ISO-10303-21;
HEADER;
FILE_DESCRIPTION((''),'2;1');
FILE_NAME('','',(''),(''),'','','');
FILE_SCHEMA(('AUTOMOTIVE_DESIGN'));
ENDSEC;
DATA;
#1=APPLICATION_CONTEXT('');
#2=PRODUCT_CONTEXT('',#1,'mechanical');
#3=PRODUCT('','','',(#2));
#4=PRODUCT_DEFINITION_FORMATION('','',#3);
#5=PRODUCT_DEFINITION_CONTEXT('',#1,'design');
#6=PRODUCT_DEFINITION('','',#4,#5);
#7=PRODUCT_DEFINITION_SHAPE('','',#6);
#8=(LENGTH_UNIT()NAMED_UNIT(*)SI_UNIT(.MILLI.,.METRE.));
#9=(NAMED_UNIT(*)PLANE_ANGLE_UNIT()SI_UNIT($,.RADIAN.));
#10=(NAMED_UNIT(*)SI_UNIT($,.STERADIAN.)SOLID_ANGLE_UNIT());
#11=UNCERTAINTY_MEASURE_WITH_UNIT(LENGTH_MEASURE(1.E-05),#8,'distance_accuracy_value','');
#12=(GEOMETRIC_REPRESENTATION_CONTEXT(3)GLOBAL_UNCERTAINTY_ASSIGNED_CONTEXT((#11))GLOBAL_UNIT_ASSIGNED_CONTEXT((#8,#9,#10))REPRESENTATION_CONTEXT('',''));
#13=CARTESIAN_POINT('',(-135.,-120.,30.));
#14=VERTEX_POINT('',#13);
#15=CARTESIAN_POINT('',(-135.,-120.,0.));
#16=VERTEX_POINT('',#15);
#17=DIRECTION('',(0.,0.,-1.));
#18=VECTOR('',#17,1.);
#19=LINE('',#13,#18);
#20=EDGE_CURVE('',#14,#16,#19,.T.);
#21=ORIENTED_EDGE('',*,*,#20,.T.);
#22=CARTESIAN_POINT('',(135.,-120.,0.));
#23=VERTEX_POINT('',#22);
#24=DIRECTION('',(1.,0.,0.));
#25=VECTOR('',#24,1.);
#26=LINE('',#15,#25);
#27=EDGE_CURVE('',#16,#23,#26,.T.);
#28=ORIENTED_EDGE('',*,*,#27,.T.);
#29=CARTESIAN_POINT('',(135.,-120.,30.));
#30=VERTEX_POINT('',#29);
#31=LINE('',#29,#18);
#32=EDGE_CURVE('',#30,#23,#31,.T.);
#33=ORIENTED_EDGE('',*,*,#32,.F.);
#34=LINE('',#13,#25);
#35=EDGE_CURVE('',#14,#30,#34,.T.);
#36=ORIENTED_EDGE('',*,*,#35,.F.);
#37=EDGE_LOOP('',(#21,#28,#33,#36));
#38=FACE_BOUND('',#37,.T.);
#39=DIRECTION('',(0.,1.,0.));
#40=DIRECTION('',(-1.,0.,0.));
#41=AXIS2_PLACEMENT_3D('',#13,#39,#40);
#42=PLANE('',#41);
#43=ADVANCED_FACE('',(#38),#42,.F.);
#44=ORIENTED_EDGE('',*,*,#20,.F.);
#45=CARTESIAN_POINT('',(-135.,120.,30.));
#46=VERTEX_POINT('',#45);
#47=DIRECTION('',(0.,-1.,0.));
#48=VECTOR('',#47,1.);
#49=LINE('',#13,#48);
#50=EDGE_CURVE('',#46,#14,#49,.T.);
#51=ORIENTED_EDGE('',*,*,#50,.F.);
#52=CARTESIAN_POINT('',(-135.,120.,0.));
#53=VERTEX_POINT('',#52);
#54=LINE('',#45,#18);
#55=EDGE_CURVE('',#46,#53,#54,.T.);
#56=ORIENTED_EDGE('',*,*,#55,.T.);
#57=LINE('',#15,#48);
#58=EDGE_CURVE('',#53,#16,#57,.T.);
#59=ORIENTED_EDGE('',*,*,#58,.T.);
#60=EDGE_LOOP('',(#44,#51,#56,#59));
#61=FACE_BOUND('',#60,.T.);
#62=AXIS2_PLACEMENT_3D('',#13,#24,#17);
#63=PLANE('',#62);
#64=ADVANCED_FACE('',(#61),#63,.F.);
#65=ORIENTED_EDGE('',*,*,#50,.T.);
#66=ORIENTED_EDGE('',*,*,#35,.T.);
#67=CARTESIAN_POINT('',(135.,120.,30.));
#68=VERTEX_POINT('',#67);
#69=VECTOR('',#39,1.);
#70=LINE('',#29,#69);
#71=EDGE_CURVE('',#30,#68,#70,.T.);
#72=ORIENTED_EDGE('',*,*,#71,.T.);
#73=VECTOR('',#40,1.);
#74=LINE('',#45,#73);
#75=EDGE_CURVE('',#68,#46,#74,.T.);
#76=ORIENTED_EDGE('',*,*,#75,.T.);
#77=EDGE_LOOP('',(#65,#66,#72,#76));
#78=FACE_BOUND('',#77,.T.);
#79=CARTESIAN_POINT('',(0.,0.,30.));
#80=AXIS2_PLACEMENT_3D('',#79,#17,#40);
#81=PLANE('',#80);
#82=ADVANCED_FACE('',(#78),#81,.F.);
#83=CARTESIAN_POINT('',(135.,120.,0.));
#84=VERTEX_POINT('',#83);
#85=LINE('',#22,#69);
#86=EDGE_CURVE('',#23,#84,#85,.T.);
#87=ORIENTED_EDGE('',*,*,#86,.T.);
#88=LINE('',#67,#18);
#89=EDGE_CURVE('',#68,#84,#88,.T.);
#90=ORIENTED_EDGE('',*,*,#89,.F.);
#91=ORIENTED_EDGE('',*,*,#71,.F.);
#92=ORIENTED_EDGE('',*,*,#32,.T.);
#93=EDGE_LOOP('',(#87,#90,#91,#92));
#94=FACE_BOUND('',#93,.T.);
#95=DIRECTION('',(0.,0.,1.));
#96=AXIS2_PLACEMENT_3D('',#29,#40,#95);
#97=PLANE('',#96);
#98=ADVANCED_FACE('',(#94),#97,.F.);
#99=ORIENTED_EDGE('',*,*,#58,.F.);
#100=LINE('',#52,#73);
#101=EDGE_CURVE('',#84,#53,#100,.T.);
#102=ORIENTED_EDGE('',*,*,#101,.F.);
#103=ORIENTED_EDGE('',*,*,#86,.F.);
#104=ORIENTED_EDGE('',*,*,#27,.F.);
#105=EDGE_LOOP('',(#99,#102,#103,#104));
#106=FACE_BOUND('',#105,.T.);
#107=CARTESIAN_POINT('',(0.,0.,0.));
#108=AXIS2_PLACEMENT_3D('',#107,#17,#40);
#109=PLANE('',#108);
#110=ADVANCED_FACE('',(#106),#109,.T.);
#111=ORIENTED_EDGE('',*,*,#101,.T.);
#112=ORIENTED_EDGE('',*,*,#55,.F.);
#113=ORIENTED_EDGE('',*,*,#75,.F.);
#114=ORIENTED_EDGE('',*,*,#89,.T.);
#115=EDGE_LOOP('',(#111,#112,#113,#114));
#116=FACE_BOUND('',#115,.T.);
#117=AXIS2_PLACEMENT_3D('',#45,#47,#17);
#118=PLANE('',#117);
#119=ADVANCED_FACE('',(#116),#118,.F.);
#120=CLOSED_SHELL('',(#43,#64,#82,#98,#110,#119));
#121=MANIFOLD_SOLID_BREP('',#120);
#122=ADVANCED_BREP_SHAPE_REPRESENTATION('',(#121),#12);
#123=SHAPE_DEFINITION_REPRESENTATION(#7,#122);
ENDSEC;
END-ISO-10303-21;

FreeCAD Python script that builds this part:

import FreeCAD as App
import Part
import Sketcher

V = App.Vector


def add_polygon(sketch, points):
    """Adds a closed chain of lines whose ends are joined by coincident constraints."""
    first, n = sketch.GeometryCount, len(points)
    for a, b in zip(points, points[1:] + points[:1]):
        sketch.addGeometry(Part.LineSegment(App.Vector(*a, 0), App.Vector(*b, 0)), False)
    for i in range(n):
        sketch.addConstraint(Sketcher.Constraint("Coincident", first + i, 2, first + (i + 1) % n, 1))

doc = App.newDocument("Part")
body = doc.addObject("PartDesign::Body", "Body")

# Sketch on XY plane
sketch1 = body.newObject("Sketcher::SketchObject", "Sketch")
sketch1.AttachmentSupport = (doc.getObject("XY_Plane"), [""])
sketch1.MapMode = "FlatFace"
add_polygon(sketch1, [(-135, 120), (-135, -120), (135, -120), (135, 120)])  # lines 0-3
sketch1.addConstraint(Sketcher.Constraint("Vertical", 0))
sketch1.addConstraint(Sketcher.Constraint("Horizontal", 1))
sketch1.addConstraint(Sketcher.Constraint("Vertical", 2))
sketch1.addConstraint(Sketcher.Constraint("Horizontal", 3))
sketch1.addConstraint(Sketcher.Constraint("Symmetric", 0, 2, 2, 2, -1, 1))
sketch1.addConstraint(Sketcher.Constraint("DistanceX", 1, 1, 1, 2, 270.0))
sketch1.addConstraint(Sketcher.Constraint("DistanceY", 0, 2, 0, 1, 240.0))
pad1 = body.newObject("PartDesign::Pad", "Pad")
pad1.Profile = sketch1
pad1.Length = 30

doc.recompute()
